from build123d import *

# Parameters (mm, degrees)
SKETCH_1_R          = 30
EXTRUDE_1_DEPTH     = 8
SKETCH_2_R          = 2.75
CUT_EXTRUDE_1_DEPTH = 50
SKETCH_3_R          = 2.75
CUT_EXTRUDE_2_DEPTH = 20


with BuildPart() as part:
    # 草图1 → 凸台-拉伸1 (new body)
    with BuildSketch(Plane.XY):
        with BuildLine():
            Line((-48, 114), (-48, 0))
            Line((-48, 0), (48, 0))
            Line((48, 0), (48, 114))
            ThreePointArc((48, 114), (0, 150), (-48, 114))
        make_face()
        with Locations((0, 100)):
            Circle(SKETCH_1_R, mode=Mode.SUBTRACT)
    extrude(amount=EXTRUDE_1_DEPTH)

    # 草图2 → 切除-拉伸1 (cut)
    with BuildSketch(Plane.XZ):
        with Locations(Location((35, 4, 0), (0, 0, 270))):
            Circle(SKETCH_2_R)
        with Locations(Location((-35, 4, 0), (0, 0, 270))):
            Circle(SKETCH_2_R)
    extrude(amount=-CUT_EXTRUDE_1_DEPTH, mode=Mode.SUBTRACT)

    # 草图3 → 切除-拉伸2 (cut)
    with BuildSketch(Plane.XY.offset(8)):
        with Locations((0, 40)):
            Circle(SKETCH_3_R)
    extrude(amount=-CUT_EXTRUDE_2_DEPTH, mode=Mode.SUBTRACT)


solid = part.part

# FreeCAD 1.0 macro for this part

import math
import FreeCAD as App
import Part
import Sketcher
from FreeCAD import Vector

doc = App.newDocument("Part")
body = doc.addObject("PartDesign::Body", "Body")

# Sketch on XY plane
sketch1 = body.newObject("Sketcher::SketchObject", "Sketch")
sketch1.AttachmentSupport = (doc.getObject("XY_Plane"), [""])
sketch1.MapMode = "FlatFace"
sketch1.addGeometry(Part.LineSegment(Vector(-48, 114, 0), Vector(-48, 0, 0)), False)
sketch1.addGeometry(Part.LineSegment(Vector(-48, 0, 0), Vector(48, 0, 0)), False)
sketch1.addGeometry(Part.LineSegment(Vector(48, 0, 0), Vector(48, 114, 0)), False)
sketch1.addGeometry(Part.ArcOfCircle(Part.Circle(Vector(0, 100, 0), Vector(0, 0, 1), 50), math.radians(16), math.radians(164)), False)
sketch1.addGeometry(Part.Circle(Vector(0, 100, 0), Vector(0, 0, 1), 30), False)
sketch1.addConstraint(Sketcher.Constraint("Coincident", 0, 2, 1, 1))
sketch1.addConstraint(Sketcher.Constraint("Coincident", 1, 2, 2, 1))
sketch1.addConstraint(Sketcher.Constraint("Coincident", 2, 2, 3, 1))
sketch1.addConstraint(Sketcher.Constraint("Coincident", 3, 2, 0, 1))
sketch1.addConstraint(Sketcher.Constraint("Vertical", 0))
sketch1.addConstraint(Sketcher.Constraint("Horizontal", 1))
sketch1.addConstraint(Sketcher.Constraint("Vertical", 2))
sketch1.addConstraint(Sketcher.Constraint("Coincident", 4, 3, 3, 3))
sketch1.addConstraint(Sketcher.Constraint("Symmetric", 0, 2, 1, 2, -1, 1))
sketch1.addConstraint(Sketcher.Constraint("PointOnObject", 3, 3, -2))
sketch1.addConstraint(Sketcher.Constraint("Diameter", 4, 60.0))
sketch1.addConstraint(Sketcher.Constraint("Radius", 3, 50.0))
sketch1.addConstraint(Sketcher.Constraint("DistanceX", 1, 1, 1, 2, 96.0))
sketch1.addConstraint(Sketcher.Constraint("DistanceY", 0, 2, 0, 1, 114.0))
pad1 = body.newObject("PartDesign::Pad", "Pad")
pad1.Profile = sketch1
pad1.Length = 8

# Sketch on XZ plane
sketch2 = body.newObject("Sketcher::SketchObject", "Sketch001")
sketch2.AttachmentSupport = (doc.getObject("XZ_Plane"), [""])
sketch2.MapMode = "FlatFace"
sketch2.addGeometry(Part.Circle(Vector(35, 4, 0), Vector(0, 0, 1), 2.8), False)
sketch2.addGeometry(Part.Circle(Vector(-35, 4, 0), Vector(0, 0, 1), 2.8), False)
sketch2.addConstraint(Sketcher.Constraint("Equal", 0, 1))
sketch2.addConstraint(Sketcher.Constraint("Symmetric", 0, 3, 1, 3, -2))
sketch2.addConstraint(Sketcher.Constraint("Diameter", 0, 5.5))
sketch2.addConstraint(Sketcher.Constraint("DistanceX", -1, 1, 0, 3, 35.0))
sketch2.addConstraint(Sketcher.Constraint("DistanceY", -1, 1, 0, 3, 4.0))
pocket1 = body.newObject("PartDesign::Pocket", "Pocket")
pocket1.Profile = sketch2
pocket1.Length = 50

# Sketch on XY plane
sketch3 = body.newObject("Sketcher::SketchObject", "Sketch002")
sketch3.AttachmentSupport = (doc.getObject("XY_Plane"), [""])
sketch3.MapMode = "FlatFace"
sketch3.AttachmentOffset = App.Placement(Vector(0, 0, 8), App.Rotation())
sketch3.addGeometry(Part.Circle(Vector(0, 40, 0), Vector(0, 0, 1), 2.8), False)
sketch3.addConstraint(Sketcher.Constraint("PointOnObject", 0, 3, -2))
sketch3.addConstraint(Sketcher.Constraint("Diameter", 0, 5.5))
sketch3.addConstraint(Sketcher.Constraint("DistanceY", -1, 1, 0, 3, 40.0))
pocket2 = body.newObject("PartDesign::Pocket", "Pocket001")
pocket2.Profile = sketch3
pocket2.Length = 20

doc.recompute()
